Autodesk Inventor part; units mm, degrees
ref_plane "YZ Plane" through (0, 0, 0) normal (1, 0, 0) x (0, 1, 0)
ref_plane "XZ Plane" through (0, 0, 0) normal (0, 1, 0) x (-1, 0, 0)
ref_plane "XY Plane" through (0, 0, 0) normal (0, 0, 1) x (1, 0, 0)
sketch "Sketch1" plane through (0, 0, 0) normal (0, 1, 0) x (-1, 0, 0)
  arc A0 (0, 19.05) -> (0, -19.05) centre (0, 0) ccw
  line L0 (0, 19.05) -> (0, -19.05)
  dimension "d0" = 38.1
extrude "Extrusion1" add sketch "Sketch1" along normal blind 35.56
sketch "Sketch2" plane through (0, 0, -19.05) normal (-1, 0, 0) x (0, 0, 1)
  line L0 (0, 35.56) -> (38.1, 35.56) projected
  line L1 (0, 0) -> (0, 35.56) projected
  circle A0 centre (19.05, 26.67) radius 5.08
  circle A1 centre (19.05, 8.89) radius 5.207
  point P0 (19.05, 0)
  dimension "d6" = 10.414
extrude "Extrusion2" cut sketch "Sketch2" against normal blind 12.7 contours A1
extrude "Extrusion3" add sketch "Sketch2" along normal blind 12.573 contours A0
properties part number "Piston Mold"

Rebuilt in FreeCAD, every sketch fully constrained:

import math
import FreeCAD as App
import Part
import Sketcher
from FreeCAD import Vector
Q = App.Units.Quantity

doc = App.newDocument("Part")
body = doc.addObject("PartDesign::Body", "Body")

# Sketch on XZ plane
sketch1 = body.newObject("Sketcher::SketchObject", "Sketch")
sketch1.AttachmentSupport = (doc.getObject("XZ_Plane"), [""])
sketch1.MapMode = "FlatFace"
sketch1.addGeometry(Part.LineSegment(Vector(0, -19, 0), Vector(0, 19, 0)), False)
sketch1.addGeometry(Part.ArcOfCircle(Part.Circle(Vector(0, 0, 0), Vector(0, 0, 1), 19), math.radians(-90), math.radians(90)), False)
sketch1.addConstraint(Sketcher.Constraint("Coincident", 0, 1, 1, 1))
sketch1.addConstraint(Sketcher.Constraint("Coincident", 1, 2, 0, 2))
sketch1.addConstraint(Sketcher.Constraint("Vertical", 0))
sketch1.addConstraint(Sketcher.Constraint("Coincident", 1, 3, -1, 1))
sketch1.addConstraint(Sketcher.Constraint("PointOnObject", 0, 1, -2))
sketch1.addConstraint(Sketcher.Constraint("Radius", 1, Q("0.75 in")))
pad1 = body.newObject("PartDesign::Pad", "Pad")
pad1.Profile = sketch1
pad1.Length = Q("1.4 in")
pad1.Reversed = True

# Sketch on YZ plane
sketch2 = body.newObject("Sketcher::SketchObject", "Sketch001")
sketch2.AttachmentSupport = (doc.getObject("YZ_Plane"), [""])
sketch2.MapMode = "FlatFace"
sketch2.addGeometry(Part.Circle(Vector(9, 0, 0), Vector(0, 0, 1), 5), False)
sketch2.addConstraint(Sketcher.Constraint("PointOnObject", 0, 3, -1))
sketch2.addConstraint(Sketcher.Constraint("Diameter", 0, Q("0.41 in")))
sketch2.addConstraint(Sketcher.Constraint("DistanceX", -1, 1, 0, 3, Q("0.35 in")))
pocket1 = body.newObject("PartDesign::Pocket", "Pocket")
pocket1.Profile = sketch2
pocket1.Length = Q("0.5 in")
pocket1.Reversed = True

# Sketch on YZ plane
sketch3 = body.newObject("Sketcher::SketchObject", "Sketch002")
sketch3.AttachmentSupport = (doc.getObject("YZ_Plane"), [""])
sketch3.MapMode = "FlatFace"
sketch3.addGeometry(Part.Circle(Vector(27, 0, 0), Vector(0, 0, 1), 5), False)
sketch3.addConstraint(Sketcher.Constraint("PointOnObject", 0, 3, -1))
sketch3.addConstraint(Sketcher.Constraint("Diameter", 0, Q("0.4 in")))
sketch3.addConstraint(Sketcher.Constraint("DistanceX", -1, 1, 0, 3, Q("1.05 in")))
pad2 = body.newObject("PartDesign::Pad", "Pad001")
pad2.Profile = sketch3
pad2.Length = Q("0.495 in")
pad2.Reversed = True

doc.recompute()
